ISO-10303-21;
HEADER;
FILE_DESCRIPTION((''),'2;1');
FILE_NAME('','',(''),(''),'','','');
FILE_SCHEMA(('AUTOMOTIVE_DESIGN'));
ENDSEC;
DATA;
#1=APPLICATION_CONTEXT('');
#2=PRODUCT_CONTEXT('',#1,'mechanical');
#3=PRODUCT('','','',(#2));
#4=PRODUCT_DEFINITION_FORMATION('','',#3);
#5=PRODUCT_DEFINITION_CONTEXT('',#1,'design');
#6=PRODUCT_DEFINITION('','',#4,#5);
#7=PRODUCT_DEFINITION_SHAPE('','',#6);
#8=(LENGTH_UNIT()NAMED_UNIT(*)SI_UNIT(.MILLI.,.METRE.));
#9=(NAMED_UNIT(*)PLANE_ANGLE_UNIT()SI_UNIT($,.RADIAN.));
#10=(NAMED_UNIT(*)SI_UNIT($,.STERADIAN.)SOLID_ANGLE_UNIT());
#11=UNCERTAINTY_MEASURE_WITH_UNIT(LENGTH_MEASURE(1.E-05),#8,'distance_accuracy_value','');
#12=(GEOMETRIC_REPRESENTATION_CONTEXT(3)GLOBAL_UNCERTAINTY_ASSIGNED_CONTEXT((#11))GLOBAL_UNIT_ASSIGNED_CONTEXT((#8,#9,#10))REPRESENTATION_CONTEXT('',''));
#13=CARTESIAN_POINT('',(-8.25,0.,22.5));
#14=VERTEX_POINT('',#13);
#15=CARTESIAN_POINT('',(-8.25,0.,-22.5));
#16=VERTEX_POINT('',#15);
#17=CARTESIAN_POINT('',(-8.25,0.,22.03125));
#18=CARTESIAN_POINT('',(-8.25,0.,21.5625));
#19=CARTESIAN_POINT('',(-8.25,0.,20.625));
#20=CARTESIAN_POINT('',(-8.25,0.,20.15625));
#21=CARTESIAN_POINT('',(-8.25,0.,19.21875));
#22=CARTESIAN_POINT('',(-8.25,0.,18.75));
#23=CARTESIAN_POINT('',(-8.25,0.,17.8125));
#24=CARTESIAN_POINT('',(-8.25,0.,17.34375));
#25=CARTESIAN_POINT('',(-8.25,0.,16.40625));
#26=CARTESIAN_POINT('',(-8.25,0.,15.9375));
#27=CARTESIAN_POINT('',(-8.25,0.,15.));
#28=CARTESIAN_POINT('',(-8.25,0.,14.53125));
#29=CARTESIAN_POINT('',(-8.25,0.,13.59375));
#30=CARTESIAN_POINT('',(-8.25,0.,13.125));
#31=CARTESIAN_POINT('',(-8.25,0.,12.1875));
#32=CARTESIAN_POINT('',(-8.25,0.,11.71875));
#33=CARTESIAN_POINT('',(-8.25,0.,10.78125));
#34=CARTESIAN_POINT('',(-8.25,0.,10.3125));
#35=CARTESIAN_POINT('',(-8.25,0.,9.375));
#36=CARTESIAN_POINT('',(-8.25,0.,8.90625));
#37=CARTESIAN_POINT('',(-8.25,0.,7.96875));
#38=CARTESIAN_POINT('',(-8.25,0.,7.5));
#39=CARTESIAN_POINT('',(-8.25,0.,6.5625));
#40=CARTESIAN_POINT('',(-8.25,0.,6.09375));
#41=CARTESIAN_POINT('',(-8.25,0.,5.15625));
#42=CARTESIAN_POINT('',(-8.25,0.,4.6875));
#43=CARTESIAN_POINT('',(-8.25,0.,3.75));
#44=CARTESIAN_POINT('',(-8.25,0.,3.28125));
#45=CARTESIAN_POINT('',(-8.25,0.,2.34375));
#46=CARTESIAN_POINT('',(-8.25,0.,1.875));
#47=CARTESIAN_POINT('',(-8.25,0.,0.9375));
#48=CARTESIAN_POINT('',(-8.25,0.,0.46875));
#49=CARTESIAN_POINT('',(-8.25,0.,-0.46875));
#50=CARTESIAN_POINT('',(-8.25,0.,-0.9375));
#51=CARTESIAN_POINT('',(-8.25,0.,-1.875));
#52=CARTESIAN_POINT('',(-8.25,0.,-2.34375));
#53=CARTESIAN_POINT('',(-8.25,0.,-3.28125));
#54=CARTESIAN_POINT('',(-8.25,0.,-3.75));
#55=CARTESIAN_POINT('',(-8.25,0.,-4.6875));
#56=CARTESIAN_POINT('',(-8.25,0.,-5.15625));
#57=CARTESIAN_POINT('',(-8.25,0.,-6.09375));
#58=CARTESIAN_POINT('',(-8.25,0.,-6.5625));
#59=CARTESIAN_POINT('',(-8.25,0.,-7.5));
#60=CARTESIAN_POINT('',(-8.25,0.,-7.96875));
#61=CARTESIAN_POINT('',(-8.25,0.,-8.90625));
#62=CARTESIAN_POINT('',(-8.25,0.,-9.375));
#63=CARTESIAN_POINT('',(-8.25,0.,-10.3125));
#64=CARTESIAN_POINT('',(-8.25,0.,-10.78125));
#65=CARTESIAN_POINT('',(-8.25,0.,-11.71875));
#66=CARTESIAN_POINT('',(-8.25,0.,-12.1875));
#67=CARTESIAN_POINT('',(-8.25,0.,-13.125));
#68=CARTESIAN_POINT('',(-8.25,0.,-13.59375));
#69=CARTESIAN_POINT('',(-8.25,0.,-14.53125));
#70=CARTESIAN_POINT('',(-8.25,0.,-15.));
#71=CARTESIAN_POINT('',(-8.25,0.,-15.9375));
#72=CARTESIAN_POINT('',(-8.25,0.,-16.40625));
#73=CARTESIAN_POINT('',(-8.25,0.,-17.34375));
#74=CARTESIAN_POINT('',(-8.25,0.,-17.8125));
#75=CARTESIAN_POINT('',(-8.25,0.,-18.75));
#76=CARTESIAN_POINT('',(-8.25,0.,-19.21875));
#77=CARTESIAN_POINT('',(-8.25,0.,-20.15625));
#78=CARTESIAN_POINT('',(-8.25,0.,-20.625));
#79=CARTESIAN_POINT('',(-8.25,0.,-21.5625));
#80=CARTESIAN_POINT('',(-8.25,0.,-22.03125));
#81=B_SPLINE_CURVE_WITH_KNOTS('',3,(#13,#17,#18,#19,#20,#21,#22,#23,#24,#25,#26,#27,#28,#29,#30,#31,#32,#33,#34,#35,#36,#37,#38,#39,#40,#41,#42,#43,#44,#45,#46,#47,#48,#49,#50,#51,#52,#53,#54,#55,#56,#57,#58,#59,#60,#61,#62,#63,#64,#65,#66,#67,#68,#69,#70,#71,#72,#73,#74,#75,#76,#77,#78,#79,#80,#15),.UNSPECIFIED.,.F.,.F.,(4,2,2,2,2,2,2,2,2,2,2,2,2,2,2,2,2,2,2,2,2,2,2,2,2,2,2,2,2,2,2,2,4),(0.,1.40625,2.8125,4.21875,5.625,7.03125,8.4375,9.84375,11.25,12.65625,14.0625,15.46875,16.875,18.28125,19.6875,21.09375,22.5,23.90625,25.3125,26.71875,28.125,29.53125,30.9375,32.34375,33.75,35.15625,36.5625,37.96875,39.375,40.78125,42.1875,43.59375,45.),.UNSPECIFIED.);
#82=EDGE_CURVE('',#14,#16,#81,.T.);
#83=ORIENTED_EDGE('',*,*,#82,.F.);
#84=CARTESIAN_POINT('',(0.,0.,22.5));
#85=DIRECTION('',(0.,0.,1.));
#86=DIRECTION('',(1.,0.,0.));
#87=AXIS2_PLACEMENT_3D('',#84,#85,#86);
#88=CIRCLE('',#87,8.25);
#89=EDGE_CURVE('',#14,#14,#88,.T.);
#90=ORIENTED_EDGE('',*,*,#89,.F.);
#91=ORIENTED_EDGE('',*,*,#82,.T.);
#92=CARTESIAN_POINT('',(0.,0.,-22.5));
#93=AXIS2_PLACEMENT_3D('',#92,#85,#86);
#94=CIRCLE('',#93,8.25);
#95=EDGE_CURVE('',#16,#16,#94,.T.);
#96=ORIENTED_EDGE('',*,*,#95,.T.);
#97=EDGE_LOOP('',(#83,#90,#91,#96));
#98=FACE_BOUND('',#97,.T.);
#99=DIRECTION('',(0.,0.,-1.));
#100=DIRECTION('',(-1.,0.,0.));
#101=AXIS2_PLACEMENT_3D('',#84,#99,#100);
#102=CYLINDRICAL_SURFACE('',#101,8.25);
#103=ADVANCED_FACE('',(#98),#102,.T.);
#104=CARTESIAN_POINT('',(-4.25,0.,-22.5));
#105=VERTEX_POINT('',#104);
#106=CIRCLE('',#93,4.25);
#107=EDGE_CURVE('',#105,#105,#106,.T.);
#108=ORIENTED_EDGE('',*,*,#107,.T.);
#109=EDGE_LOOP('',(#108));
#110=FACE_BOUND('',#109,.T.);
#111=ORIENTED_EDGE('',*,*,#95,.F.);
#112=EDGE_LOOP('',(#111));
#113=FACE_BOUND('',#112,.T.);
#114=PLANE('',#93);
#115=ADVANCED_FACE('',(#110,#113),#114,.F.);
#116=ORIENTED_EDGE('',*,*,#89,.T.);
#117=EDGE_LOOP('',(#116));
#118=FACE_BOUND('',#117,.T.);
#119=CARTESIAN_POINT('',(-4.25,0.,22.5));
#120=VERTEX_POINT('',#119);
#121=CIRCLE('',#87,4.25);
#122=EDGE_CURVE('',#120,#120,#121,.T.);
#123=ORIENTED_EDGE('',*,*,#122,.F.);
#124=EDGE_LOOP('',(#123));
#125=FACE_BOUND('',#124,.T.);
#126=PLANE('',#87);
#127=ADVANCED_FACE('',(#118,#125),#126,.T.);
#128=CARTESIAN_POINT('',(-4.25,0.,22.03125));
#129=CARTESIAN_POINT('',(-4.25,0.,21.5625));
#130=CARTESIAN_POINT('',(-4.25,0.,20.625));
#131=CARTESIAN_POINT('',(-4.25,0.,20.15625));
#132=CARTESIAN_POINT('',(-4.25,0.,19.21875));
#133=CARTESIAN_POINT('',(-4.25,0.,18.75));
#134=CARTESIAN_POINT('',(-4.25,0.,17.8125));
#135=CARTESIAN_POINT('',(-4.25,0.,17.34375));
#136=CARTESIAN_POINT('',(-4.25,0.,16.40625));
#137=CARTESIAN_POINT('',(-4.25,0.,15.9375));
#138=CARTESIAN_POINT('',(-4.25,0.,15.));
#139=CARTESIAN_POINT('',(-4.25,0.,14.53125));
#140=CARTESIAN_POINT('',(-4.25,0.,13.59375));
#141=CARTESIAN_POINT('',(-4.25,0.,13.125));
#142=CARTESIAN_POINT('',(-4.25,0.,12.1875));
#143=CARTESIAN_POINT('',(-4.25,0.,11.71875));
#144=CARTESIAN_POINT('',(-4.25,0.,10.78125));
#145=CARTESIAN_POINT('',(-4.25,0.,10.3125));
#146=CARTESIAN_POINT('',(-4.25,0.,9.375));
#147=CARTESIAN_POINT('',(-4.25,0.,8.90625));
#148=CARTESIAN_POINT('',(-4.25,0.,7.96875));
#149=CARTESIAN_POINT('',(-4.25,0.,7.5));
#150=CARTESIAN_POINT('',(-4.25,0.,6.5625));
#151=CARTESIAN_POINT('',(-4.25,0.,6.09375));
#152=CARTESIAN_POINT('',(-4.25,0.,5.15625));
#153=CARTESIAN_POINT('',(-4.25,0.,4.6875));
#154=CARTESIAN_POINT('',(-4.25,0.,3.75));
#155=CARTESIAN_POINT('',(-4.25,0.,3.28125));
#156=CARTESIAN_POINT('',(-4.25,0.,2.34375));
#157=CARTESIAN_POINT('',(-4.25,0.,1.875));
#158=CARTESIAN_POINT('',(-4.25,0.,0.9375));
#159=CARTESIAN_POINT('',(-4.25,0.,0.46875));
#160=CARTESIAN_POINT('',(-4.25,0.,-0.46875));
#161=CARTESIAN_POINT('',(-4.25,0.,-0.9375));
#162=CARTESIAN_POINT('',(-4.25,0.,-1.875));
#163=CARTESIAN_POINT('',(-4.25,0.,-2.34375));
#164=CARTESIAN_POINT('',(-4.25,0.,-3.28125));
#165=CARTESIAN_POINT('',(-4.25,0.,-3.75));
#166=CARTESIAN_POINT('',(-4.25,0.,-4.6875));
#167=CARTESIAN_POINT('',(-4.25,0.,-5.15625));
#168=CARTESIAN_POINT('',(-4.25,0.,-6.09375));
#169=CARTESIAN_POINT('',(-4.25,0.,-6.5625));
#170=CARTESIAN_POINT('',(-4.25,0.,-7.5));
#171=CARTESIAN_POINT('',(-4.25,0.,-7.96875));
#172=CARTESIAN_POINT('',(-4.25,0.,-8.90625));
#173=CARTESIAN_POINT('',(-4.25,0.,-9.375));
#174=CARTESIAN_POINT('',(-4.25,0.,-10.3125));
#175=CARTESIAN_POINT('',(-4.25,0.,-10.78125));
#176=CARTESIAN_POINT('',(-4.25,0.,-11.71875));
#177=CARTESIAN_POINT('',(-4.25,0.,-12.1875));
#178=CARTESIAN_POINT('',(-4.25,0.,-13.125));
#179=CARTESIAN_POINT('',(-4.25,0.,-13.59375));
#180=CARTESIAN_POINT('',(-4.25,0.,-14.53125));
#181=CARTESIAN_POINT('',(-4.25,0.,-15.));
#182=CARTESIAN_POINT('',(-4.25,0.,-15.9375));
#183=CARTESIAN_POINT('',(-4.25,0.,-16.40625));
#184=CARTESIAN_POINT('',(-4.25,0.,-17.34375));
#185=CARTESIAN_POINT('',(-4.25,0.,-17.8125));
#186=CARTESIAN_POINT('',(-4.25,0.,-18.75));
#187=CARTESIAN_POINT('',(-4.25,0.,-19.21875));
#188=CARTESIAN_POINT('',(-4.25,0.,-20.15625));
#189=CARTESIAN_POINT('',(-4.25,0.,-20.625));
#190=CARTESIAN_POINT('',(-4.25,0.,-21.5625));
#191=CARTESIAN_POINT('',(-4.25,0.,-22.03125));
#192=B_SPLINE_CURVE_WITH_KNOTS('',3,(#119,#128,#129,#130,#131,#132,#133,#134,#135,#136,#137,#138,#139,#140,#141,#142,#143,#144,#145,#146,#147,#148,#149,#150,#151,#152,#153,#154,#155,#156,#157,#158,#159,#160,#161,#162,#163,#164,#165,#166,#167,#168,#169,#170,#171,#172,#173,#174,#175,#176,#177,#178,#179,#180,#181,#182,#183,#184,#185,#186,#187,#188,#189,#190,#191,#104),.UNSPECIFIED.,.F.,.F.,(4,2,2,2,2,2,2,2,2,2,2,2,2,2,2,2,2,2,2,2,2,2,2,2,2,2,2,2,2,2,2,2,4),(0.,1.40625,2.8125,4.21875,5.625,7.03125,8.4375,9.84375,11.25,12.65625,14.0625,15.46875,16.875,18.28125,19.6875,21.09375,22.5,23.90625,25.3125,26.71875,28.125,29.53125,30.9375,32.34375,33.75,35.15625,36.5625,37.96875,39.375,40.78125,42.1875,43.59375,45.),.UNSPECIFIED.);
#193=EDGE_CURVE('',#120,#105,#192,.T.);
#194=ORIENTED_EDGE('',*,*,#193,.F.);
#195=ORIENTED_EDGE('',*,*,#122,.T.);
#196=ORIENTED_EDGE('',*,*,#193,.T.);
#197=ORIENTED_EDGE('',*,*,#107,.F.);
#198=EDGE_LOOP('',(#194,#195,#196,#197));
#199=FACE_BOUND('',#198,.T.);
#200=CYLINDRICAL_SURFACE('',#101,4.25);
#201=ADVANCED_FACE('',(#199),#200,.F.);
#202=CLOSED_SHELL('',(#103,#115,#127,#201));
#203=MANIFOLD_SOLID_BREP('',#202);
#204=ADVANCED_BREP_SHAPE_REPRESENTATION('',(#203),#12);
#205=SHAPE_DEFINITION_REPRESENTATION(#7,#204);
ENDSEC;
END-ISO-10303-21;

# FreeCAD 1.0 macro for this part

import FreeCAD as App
import Part
import Sketcher
Q = App.Units.Quantity

doc = App.newDocument("Part")
body = doc.addObject("PartDesign::Body", "Body")

# Sketch on XY plane
sketch1 = body.newObject("Sketcher::SketchObject", "Sketch")
sketch1.AttachmentSupport = (doc.getObject("XY_Plane"), [""])
sketch1.MapMode = "FlatFace"
sketch1.addGeometry([
    Part.Circle(App.Vector(0, 0, 0), App.Vector(0, 0, 1), 8.25),
    Part.Circle(App.Vector(0, 0, 0), App.Vector(0, 0, 1), 4.25),
], False)
sketch1.addConstraint([
    Sketcher.Constraint("Coincident", 0, 3, -1, 1),
    Sketcher.Constraint("Coincident", 1, 3, -1, 1),
    Sketcher.Constraint("Diameter", 0, Q("16.5 mm")),
    Sketcher.Constraint("Diameter", 1, Q("8.5 mm")),
])
pad1 = body.newObject("PartDesign::Pad", "Pad")
pad1.Profile = sketch1
pad1.Length = 45
pad1.Midplane = True

doc.recompute()
